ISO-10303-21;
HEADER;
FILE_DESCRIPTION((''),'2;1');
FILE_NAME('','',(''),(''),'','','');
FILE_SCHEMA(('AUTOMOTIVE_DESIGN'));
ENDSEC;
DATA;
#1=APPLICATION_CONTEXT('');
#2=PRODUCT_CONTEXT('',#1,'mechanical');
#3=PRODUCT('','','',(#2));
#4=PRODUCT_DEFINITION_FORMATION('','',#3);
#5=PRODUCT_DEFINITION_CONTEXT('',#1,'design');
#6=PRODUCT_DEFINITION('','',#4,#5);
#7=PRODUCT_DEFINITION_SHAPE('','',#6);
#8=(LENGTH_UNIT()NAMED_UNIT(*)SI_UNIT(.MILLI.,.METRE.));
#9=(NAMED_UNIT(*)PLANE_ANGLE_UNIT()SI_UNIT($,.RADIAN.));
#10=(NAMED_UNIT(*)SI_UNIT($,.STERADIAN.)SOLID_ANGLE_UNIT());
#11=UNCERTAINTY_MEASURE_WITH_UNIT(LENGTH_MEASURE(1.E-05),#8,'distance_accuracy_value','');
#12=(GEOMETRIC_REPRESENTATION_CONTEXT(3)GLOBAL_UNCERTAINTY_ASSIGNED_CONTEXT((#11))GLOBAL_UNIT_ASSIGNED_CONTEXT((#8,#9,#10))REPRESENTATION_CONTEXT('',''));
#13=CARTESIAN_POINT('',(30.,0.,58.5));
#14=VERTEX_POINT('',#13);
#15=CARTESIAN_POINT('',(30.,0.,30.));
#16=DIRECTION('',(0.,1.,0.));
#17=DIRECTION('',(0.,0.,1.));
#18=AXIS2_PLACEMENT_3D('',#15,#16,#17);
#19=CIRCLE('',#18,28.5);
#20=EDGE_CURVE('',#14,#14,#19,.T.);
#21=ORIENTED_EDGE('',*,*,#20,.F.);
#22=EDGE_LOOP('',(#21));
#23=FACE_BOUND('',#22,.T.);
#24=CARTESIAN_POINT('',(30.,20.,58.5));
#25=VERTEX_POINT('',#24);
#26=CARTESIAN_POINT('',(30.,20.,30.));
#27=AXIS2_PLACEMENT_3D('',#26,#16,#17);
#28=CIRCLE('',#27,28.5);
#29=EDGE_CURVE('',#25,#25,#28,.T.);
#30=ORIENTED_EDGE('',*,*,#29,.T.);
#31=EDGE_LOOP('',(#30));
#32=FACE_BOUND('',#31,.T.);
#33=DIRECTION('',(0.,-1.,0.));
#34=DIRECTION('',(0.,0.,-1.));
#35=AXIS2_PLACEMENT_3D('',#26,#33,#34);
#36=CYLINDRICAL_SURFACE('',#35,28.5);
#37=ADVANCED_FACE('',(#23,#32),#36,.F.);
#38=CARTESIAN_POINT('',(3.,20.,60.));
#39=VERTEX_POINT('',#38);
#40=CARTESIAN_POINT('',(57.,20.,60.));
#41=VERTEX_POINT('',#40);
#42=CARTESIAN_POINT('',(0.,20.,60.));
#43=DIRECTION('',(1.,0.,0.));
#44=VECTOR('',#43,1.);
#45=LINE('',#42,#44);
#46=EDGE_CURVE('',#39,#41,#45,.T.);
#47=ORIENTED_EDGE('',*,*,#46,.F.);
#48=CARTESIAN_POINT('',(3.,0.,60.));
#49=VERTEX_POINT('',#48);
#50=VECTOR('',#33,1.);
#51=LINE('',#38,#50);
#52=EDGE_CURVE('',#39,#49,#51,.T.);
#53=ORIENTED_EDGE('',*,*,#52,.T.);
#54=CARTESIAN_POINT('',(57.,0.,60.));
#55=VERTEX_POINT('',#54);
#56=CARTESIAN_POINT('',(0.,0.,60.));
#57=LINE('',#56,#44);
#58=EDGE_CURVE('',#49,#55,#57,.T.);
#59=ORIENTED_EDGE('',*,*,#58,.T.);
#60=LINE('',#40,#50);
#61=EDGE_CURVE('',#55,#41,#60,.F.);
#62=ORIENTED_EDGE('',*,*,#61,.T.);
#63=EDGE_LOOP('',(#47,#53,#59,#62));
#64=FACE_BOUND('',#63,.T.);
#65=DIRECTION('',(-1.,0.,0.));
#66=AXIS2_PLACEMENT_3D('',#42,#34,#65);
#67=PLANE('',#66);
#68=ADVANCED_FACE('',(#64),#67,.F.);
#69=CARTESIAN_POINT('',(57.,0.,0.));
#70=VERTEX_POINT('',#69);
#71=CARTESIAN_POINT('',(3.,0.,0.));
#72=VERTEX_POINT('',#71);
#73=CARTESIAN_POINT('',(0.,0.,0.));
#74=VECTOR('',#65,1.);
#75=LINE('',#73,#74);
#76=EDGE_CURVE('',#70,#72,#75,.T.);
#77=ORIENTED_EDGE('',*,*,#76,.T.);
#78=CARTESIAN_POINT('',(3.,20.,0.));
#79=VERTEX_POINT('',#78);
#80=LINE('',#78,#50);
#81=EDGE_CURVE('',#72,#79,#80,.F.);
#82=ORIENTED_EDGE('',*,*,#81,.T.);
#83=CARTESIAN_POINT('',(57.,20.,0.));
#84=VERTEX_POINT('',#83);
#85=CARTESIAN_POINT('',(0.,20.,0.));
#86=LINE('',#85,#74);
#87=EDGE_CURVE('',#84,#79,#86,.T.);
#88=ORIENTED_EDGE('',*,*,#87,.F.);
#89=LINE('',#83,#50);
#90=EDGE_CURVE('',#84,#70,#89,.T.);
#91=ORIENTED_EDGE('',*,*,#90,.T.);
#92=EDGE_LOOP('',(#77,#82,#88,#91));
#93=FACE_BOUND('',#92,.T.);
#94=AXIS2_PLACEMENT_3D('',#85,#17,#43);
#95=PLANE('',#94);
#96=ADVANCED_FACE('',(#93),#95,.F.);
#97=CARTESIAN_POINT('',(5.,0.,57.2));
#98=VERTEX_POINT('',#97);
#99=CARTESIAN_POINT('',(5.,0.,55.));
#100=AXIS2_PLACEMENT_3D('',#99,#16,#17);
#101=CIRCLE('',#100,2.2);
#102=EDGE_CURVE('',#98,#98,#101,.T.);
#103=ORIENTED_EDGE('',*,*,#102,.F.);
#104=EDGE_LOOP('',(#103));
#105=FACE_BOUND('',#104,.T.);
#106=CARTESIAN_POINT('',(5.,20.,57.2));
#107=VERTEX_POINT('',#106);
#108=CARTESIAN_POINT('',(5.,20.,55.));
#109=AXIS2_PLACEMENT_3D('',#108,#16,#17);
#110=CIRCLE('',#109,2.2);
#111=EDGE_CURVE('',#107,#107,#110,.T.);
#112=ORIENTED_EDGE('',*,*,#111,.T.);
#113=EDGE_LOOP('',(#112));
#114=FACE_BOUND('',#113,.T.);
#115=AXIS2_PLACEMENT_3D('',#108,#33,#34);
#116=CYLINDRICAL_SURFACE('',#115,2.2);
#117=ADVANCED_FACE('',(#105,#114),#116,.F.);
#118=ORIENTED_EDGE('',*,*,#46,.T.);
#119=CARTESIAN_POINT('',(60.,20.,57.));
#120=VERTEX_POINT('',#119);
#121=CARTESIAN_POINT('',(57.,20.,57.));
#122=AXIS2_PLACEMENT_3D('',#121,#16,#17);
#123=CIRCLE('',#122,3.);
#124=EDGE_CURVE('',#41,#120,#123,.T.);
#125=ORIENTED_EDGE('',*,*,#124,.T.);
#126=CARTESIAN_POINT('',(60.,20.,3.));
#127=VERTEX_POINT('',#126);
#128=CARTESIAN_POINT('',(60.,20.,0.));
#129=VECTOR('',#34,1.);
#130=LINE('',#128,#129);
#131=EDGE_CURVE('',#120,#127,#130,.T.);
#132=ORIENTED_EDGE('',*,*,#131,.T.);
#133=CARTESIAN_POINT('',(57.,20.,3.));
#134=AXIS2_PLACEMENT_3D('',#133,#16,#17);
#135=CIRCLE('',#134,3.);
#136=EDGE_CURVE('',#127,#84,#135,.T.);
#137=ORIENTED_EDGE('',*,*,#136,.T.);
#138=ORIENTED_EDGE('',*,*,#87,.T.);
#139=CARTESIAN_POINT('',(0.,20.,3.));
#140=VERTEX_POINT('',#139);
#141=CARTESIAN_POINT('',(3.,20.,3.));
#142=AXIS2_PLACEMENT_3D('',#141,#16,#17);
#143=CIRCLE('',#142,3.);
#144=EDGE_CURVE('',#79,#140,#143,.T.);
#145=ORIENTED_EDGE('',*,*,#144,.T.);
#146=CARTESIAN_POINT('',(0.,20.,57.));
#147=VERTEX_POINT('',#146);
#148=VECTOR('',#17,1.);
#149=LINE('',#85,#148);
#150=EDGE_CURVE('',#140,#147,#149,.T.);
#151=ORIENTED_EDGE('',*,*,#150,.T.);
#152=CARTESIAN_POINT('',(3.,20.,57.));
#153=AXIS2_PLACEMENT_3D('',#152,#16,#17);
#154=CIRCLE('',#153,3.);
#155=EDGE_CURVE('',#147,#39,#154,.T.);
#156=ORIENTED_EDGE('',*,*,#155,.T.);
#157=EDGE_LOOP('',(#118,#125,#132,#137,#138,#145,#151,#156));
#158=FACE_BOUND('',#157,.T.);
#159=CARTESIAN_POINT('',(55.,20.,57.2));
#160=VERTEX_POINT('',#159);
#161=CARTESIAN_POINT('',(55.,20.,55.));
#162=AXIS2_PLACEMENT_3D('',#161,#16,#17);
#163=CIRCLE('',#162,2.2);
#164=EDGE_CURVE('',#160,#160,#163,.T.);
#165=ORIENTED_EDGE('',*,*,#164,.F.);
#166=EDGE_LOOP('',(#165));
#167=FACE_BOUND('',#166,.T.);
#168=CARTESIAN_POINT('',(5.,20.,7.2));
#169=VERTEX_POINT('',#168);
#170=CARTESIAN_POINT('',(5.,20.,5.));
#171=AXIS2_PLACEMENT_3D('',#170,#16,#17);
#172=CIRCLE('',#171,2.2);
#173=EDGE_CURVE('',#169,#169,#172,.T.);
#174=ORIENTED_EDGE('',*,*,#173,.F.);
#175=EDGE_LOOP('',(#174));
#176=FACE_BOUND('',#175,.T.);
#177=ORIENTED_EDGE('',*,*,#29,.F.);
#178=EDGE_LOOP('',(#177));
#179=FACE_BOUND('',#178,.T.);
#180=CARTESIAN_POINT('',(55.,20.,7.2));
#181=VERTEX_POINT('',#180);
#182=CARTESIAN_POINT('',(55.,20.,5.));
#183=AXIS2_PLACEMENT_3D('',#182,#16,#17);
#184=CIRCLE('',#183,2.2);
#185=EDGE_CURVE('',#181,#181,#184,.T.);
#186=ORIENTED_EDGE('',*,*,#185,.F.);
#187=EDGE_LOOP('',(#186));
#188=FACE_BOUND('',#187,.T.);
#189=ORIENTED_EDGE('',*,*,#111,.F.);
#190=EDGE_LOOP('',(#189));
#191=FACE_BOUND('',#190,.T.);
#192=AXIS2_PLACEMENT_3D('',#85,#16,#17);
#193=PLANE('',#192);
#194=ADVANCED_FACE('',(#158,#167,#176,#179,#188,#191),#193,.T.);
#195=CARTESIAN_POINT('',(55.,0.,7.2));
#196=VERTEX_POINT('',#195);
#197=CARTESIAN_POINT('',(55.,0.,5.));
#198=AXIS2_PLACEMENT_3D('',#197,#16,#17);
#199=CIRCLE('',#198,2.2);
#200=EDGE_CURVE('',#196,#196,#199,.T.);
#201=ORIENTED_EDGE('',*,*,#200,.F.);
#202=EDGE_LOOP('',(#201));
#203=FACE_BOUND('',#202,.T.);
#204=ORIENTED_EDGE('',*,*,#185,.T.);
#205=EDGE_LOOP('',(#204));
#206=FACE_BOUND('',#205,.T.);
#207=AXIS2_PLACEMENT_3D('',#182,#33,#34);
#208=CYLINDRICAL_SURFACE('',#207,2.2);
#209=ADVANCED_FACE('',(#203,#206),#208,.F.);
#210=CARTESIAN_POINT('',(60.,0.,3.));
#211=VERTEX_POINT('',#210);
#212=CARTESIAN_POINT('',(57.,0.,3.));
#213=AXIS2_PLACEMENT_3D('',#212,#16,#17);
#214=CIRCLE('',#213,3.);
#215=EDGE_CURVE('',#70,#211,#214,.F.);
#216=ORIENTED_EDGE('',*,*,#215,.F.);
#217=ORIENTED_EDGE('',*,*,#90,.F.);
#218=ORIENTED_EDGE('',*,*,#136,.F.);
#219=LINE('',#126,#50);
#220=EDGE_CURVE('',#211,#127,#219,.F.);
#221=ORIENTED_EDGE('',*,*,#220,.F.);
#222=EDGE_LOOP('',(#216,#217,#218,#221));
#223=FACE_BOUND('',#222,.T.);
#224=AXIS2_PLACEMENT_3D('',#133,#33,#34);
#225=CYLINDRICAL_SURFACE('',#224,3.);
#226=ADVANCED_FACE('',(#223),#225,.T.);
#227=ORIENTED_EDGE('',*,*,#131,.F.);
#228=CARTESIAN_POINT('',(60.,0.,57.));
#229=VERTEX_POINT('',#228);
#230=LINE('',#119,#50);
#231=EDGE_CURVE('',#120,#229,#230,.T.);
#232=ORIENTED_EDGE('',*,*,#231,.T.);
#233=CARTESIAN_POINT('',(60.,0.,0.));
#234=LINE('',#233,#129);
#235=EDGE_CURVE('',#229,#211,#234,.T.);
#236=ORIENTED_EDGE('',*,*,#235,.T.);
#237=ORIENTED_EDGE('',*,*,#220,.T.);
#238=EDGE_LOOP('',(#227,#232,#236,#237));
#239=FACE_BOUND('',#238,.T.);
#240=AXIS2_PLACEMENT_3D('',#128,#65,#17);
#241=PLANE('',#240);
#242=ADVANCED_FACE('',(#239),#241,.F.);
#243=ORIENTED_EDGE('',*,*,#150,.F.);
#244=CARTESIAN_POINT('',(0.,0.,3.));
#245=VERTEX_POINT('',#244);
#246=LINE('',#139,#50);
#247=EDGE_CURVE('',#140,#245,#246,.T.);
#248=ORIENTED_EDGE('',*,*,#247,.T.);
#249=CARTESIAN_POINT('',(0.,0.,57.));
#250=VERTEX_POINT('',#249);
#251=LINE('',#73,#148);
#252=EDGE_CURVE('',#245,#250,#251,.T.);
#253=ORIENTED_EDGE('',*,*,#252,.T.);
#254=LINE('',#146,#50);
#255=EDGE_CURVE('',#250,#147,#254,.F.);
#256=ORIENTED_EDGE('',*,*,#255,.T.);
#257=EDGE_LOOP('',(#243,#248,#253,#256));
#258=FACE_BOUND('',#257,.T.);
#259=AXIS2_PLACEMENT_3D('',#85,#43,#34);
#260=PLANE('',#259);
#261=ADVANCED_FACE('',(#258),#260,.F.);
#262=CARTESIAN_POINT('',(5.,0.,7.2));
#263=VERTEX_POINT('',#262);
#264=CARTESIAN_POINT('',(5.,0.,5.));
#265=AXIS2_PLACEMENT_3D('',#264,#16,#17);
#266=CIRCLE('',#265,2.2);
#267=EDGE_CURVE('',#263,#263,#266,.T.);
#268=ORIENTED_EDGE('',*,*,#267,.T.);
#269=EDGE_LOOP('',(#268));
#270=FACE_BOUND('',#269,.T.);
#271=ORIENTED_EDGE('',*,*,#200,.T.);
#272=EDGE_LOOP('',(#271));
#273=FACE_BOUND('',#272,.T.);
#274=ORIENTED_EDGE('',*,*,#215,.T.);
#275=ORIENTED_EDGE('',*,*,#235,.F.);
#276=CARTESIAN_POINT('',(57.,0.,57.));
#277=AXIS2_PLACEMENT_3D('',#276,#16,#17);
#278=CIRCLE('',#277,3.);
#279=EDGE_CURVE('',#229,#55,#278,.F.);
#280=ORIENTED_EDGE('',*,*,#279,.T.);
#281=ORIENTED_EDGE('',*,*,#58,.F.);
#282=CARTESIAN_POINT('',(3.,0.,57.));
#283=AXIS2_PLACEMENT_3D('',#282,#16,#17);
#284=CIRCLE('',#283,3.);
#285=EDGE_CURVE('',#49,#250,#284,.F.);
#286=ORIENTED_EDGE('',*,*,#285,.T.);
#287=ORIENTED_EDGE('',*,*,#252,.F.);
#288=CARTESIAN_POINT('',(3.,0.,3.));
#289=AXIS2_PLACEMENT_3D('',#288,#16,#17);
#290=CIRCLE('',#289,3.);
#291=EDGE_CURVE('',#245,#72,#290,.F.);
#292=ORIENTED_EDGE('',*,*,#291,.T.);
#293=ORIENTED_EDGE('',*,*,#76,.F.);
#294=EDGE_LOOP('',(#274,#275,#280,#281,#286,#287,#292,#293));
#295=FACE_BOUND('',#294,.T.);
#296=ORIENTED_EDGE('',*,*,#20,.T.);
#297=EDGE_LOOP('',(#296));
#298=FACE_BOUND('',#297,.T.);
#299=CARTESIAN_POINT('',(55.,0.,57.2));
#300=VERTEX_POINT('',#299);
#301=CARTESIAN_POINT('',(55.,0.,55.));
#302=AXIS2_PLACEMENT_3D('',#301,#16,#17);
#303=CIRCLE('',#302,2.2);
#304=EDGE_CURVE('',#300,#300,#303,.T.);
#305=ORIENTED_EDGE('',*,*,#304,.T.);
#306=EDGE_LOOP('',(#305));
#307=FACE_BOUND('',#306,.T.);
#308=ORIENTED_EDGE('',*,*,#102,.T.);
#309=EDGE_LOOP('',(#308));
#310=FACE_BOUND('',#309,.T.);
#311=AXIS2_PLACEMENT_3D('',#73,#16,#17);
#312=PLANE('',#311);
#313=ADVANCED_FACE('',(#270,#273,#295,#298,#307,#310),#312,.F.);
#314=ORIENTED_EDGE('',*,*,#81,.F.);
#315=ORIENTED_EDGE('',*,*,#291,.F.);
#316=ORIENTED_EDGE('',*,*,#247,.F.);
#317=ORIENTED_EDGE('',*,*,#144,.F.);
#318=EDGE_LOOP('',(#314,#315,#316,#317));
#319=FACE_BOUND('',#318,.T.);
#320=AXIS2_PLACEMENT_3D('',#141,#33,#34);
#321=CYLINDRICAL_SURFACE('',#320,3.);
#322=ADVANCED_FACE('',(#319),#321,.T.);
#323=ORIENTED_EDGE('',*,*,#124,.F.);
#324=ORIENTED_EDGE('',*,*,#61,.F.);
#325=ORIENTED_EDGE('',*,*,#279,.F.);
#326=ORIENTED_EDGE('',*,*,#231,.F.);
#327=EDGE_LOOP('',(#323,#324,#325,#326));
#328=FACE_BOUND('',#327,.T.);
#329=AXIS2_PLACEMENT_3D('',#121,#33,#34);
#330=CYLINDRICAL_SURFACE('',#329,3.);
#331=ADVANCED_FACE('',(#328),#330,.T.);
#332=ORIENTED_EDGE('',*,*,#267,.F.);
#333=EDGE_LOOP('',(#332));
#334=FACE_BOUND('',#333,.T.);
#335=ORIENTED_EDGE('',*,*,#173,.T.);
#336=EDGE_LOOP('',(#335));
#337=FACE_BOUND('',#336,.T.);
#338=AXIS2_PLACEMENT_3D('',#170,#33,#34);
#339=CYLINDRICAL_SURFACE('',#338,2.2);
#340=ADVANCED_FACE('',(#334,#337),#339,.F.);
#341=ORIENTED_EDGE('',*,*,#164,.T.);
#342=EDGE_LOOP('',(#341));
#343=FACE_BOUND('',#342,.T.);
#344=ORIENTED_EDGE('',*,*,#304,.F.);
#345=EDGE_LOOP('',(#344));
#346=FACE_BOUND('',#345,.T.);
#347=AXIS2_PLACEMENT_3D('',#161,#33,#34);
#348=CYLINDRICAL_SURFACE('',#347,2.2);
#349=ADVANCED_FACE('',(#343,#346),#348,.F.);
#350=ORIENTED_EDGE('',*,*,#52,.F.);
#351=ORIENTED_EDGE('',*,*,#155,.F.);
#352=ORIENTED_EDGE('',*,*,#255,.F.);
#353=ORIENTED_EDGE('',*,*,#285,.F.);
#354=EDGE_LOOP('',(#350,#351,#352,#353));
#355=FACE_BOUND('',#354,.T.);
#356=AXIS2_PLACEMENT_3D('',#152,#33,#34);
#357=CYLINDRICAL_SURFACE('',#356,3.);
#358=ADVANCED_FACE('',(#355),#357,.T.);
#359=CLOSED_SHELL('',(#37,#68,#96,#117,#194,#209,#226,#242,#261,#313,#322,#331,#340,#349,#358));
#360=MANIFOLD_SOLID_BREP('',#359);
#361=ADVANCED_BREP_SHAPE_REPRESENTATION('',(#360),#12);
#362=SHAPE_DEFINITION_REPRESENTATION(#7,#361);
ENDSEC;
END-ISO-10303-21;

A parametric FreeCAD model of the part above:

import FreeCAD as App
import Part
import Sketcher


def edges_at(feature, points):
    """Names of the edges that pass closest to the given points."""
    edges = feature.Shape.Edges
    near = lambda p: min(range(len(edges)), key=lambda i: edges[i].distToShape(Part.Vertex(*p))[0])
    return sorted({f"Edge{near(p) + 1}" for p in points})

doc = App.newDocument("Part")
params = doc.addObject("Spreadsheet::Sheet", "Params")
for row, (alias, value) in enumerate([
    ("sketch1_diameter", "57 mm"),
    ("sketch1_diameter2", "4.4 mm"),
    ("sketch1_width", "60 mm"),
    ("pad1_length", "20 mm"),
    ("fillet_radius", "3 mm"),
], start=1):
    params.set(f"A{row}", alias)
    params.set(f"B{row}", "=" + value)
    params.setAlias(f"B{row}", alias)

body = doc.addObject("PartDesign::Body", "Body")

sketch1 = doc.addObject("Sketcher::SketchObject", "Sketch")
body.addObject(sketch1)
sketch1.AttachmentSupport = (doc.XZ_Plane, [""])
sketch1.MapMode = "FlatFace"
sketch1.addGeometry(Part.LineSegment(App.Vector(0, 0, 0), App.Vector(0, 60, 0)), False)
sketch1.addGeometry(Part.LineSegment(App.Vector(0, 60, 0), App.Vector(60, 60, 0)), False)
sketch1.addGeometry(Part.LineSegment(App.Vector(60, 60, 0), App.Vector(60, 0, 0)), False)
sketch1.addGeometry(Part.LineSegment(App.Vector(60, 0, 0), App.Vector(0, 0, 0)), False)
sketch1.addGeometry(Part.Circle(App.Vector(5, 55, 0), App.Vector(0, 0, 1), 2.2), False)
sketch1.addGeometry(Part.Circle(App.Vector(55, 55, 0), App.Vector(0, 0, 1), 2.2), False)
sketch1.addGeometry(Part.Circle(App.Vector(5, 5, 0), App.Vector(0, 0, 1), 2.2), False)
sketch1.addGeometry(Part.Circle(App.Vector(30, 30, 0), App.Vector(0, 0, 1), 28.5), False)
sketch1.addGeometry(Part.Circle(App.Vector(55, 5, 0), App.Vector(0, 0, 1), 2.2), False)
sketch1.addConstraint(Sketcher.Constraint("Coincident", 0, 2, 1, 1))
sketch1.addConstraint(Sketcher.Constraint("Coincident", 1, 2, 2, 1))
sketch1.addConstraint(Sketcher.Constraint("Coincident", 2, 2, 3, 1))
sketch1.addConstraint(Sketcher.Constraint("Coincident", 3, 2, 0, 1))
sketch1.addConstraint(Sketcher.Constraint("Vertical", 0))
sketch1.addConstraint(Sketcher.Constraint("Horizontal", 1))
sketch1.addConstraint(Sketcher.Constraint("Vertical", 2))
sketch1.addConstraint(Sketcher.Constraint("Horizontal", 3))
sketch1.addConstraint(Sketcher.Constraint("Coincident", 3, 2, -1, 1))
sketch1.addConstraint(Sketcher.Constraint("Equal", 4, 5))
sketch1.addConstraint(Sketcher.Constraint("Equal", 5, 6))
sketch1.addConstraint(Sketcher.Constraint("Equal", 6, 8))
sketch1.addConstraint(Sketcher.Constraint("Horizontal", 4, 3, 5, 3))
sketch1.addConstraint(Sketcher.Constraint("Horizontal", 6, 3, 8, 3))
sketch1.addConstraint(Sketcher.Constraint("Vertical", 4, 3, 6, 3))
sketch1.addConstraint(Sketcher.Constraint("Vertical", 5, 3, 8, 3))
sketch1.addConstraint(Sketcher.Constraint("Equal", 3, 0))
sketch1.addConstraint(Sketcher.Constraint("Diameter", 7, 57.0))
sketch1.addConstraint(Sketcher.Constraint("Diameter", 4, 4.4))
sketch1.addConstraint(Sketcher.Constraint("DistanceX", 1, 1, 1, 2, 60.0))
sketch1.addConstraint(Sketcher.Constraint("DistanceX", -1, 1, 4, 3, 5.0))
sketch1.addConstraint(Sketcher.Constraint("DistanceY", -1, 1, 4, 3, 55.0))
sketch1.addConstraint(Sketcher.Constraint("DistanceX", -1, 1, 5, 3, 55.0))
sketch1.addConstraint(Sketcher.Constraint("DistanceY", -1, 1, 6, 3, 5.0))
sketch1.addConstraint(Sketcher.Constraint("DistanceX", -1, 1, 7, 3, 30.0))
sketch1.addConstraint(Sketcher.Constraint("DistanceY", -1, 1, 7, 3, 30.0))
sketch1.setExpression("Constraints[17]", "Params.sketch1_diameter")
sketch1.setExpression("Constraints[18]", "Params.sketch1_diameter2")
sketch1.setExpression("Constraints[19]", "Params.sketch1_width")
pad1 = doc.addObject("PartDesign::Pad", "Pad")
body.addObject(pad1)
pad1.Profile = sketch1
pad1.setExpression("Length", "Params.pad1_length")
pad1.Reversed = True
doc.recompute()

fillet = doc.addObject("PartDesign::Fillet", "Fillet")
body.addObject(fillet)
fillet.Base = (pad1, edges_at(pad1, [
    (0, 10, 0),
    (60, 10, 0),
    (60, 10, 60),
    (0, 10, 60),
]))
fillet.setExpression("Radius", "Params.fillet_radius")

doc.recompute()
